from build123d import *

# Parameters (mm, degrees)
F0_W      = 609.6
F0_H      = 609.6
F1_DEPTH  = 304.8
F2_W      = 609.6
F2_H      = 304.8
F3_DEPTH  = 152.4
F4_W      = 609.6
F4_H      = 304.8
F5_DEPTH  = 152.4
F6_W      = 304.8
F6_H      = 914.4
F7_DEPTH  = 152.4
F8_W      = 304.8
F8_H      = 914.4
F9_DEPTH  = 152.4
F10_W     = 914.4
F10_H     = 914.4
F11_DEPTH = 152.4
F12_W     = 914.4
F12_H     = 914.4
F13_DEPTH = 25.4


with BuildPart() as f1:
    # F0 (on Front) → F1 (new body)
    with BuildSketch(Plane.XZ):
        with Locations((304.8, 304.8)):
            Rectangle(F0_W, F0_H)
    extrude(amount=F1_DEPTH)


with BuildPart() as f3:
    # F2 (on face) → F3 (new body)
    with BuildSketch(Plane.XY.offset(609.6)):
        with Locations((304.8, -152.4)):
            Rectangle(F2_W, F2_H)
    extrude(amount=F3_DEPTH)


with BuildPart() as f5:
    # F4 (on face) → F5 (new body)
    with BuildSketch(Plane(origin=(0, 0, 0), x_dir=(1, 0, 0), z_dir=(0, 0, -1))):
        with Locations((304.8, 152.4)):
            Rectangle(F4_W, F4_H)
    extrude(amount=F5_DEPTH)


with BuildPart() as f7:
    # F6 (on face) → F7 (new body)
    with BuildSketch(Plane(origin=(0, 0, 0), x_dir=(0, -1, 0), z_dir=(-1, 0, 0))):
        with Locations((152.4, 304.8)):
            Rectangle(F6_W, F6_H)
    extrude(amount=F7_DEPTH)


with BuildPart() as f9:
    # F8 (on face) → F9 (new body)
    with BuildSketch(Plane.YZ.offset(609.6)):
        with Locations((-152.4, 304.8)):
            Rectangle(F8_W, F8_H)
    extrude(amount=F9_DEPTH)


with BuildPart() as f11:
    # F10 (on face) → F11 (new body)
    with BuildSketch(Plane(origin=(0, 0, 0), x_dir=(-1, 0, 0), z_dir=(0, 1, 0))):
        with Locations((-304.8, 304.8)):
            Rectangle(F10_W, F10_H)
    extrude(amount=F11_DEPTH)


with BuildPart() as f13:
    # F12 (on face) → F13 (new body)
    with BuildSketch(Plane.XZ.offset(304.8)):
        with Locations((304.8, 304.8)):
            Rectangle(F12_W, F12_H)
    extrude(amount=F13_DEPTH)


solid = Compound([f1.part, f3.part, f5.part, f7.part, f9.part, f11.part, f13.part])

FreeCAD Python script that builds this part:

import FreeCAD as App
import Part
import Sketcher

V = App.Vector
Q = App.Units.Quantity

doc = App.newDocument("Part")
body = doc.addObject("PartDesign::Body", "Body")

# Sketch on XZ plane
sketch1 = body.newObject("Sketcher::SketchObject", "Sketch")
sketch1.AttachmentSupport = (doc.getObject("XZ_Plane"), [""])
sketch1.MapMode = "FlatFace"
sketch1.addGeometry(Part.LineSegment(V(0, 609.6, 0), V(0, 0, 0)), False)
sketch1.addGeometry(Part.LineSegment(V(0, 0, 0), V(609.6, 0, 0)), False)
sketch1.addGeometry(Part.LineSegment(V(609.6, 0, 0), V(609.6, 609.6, 0)), False)
sketch1.addGeometry(Part.LineSegment(V(609.6, 609.6, 0), V(0, 609.6, 0)), False)
sketch1.addConstraint(Sketcher.Constraint("Coincident", 0, 2, 1, 1))
sketch1.addConstraint(Sketcher.Constraint("Coincident", 1, 2, 2, 1))
sketch1.addConstraint(Sketcher.Constraint("Coincident", 2, 2, 3, 1))
sketch1.addConstraint(Sketcher.Constraint("Coincident", 3, 2, 0, 1))
sketch1.addConstraint(Sketcher.Constraint("Vertical", 0))
sketch1.addConstraint(Sketcher.Constraint("Horizontal", 1))
sketch1.addConstraint(Sketcher.Constraint("Vertical", 2))
sketch1.addConstraint(Sketcher.Constraint("Horizontal", 3))
sketch1.addConstraint(Sketcher.Constraint("Coincident", 0, 2, -1, 1))
sketch1.addConstraint(Sketcher.Constraint("Equal", 3, 0))
sketch1.addConstraint(Sketcher.Constraint("DistanceX", 1, 1, 1, 2, Q("24 in")))
pad1 = body.newObject("PartDesign::Pad", "Pad")
pad1.Profile = sketch1
pad1.Length = Q("12 in")
body2 = doc.addObject("PartDesign::Body", "Body001")

# Sketch on XY plane
sketch2 = body2.newObject("Sketcher::SketchObject", "Sketch001")
sketch2.AttachmentSupport = (doc.getObject("XY_Plane001"), [""])
sketch2.MapMode = "FlatFace"
sketch2.AttachmentOffset = App.Placement(V(0, 0, 24 * 25.4), App.Rotation())
sketch2.addGeometry(Part.LineSegment(V(0, 0, 0), V(0, -304.8, 0)), False)
sketch2.addGeometry(Part.LineSegment(V(0, -304.8, 0), V(609.6, -304.8, 0)), False)
sketch2.addGeometry(Part.LineSegment(V(609.6, -304.8, 0), V(609.6, 0, 0)), False)
sketch2.addGeometry(Part.LineSegment(V(609.6, 0, 0), V(0, 0, 0)), False)
sketch2.addConstraint(Sketcher.Constraint("Coincident", 0, 2, 1, 1))
sketch2.addConstraint(Sketcher.Constraint("Coincident", 1, 2, 2, 1))
sketch2.addConstraint(Sketcher.Constraint("Coincident", 2, 2, 3, 1))
sketch2.addConstraint(Sketcher.Constraint("Coincident", 3, 2, 0, 1))
sketch2.addConstraint(Sketcher.Constraint("Vertical", 0))
sketch2.addConstraint(Sketcher.Constraint("Horizontal", 1))
sketch2.addConstraint(Sketcher.Constraint("Vertical", 2))
sketch2.addConstraint(Sketcher.Constraint("Horizontal", 3))
sketch2.addConstraint(Sketcher.Constraint("Coincident", 3, 2, -1, 1))
sketch2.addConstraint(Sketcher.Constraint("DistanceX", 1, 1, 1, 2, Q("24 in")))
sketch2.addConstraint(Sketcher.Constraint("DistanceY", 0, 2, 0, 1, Q("12 in")))
pad2 = body2.newObject("PartDesign::Pad", "Pad001")
pad2.Profile = sketch2
pad2.Length = Q("6 in")
body3 = doc.addObject("PartDesign::Body", "Body002")

# Sketch on XY plane
sketch3 = body3.newObject("Sketcher::SketchObject", "Sketch002")
sketch3.AttachmentSupport = (doc.getObject("XY_Plane002"), [""])
sketch3.MapMode = "FlatFace"
sketch3.addGeometry(Part.LineSegment(V(0, -304.8, 0), V(0, 0, 0)), False)
sketch3.addGeometry(Part.LineSegment(V(0, 0, 0), V(609.6, 0, 0)), False)
sketch3.addGeometry(Part.LineSegment(V(609.6, 0, 0), V(609.6, -304.8, 0)), False)
sketch3.addGeometry(Part.LineSegment(V(609.6, -304.8, 0), V(0, -304.8, 0)), False)
sketch3.addConstraint(Sketcher.Constraint("Coincident", 0, 2, 1, 1))
sketch3.addConstraint(Sketcher.Constraint("Coincident", 1, 2, 2, 1))
sketch3.addConstraint(Sketcher.Constraint("Coincident", 2, 2, 3, 1))
sketch3.addConstraint(Sketcher.Constraint("Coincident", 3, 2, 0, 1))
sketch3.addConstraint(Sketcher.Constraint("Vertical", 0))
sketch3.addConstraint(Sketcher.Constraint("Horizontal", 1))
sketch3.addConstraint(Sketcher.Constraint("Vertical", 2))
sketch3.addConstraint(Sketcher.Constraint("Horizontal", 3))
sketch3.addConstraint(Sketcher.Constraint("Coincident", 0, 2, -1, 1))
sketch3.addConstraint(Sketcher.Constraint("DistanceX", 1, 1, 1, 2, Q("24 in")))
sketch3.addConstraint(Sketcher.Constraint("DistanceY", 0, 1, 0, 2, Q("12 in")))
pad3 = body3.newObject("PartDesign::Pad", "Pad002")
pad3.Profile = sketch3
pad3.Length = Q("6 in")
pad3.Reversed = True
body4 = doc.addObject("PartDesign::Body", "Body003")

# Sketch on YZ plane
sketch4 = body4.newObject("Sketcher::SketchObject", "Sketch003")
sketch4.AttachmentSupport = (doc.getObject("YZ_Plane003"), [""])
sketch4.MapMode = "FlatFace"
sketch4.addGeometry(Part.LineSegment(V(0, 762, 0), V(0, -152.4, 0)), False)
sketch4.addGeometry(Part.LineSegment(V(0, -152.4, 0), V(-304.8, -152.4, 0)), False)
sketch4.addGeometry(Part.LineSegment(V(-304.8, -152.4, 0), V(-304.8, 762, 0)), False)
sketch4.addGeometry(Part.LineSegment(V(-304.8, 762, 0), V(0, 762, 0)), False)
sketch4.addConstraint(Sketcher.Constraint("Coincident", 0, 2, 1, 1))
sketch4.addConstraint(Sketcher.Constraint("Coincident", 1, 2, 2, 1))
sketch4.addConstraint(Sketcher.Constraint("Coincident", 2, 2, 3, 1))
sketch4.addConstraint(Sketcher.Constraint("Coincident", 3, 2, 0, 1))
sketch4.addConstraint(Sketcher.Constraint("Vertical", 0))
sketch4.addConstraint(Sketcher.Constraint("Horizontal", 1))
sketch4.addConstraint(Sketcher.Constraint("Vertical", 2))
sketch4.addConstraint(Sketcher.Constraint("Horizontal", 3))
sketch4.addConstraint(Sketcher.Constraint("PointOnObject", 0, 2, -2))
sketch4.addConstraint(Sketcher.Constraint("DistanceX", 1, 2, 1, 1, Q("12 in")))
sketch4.addConstraint(Sketcher.Constraint("DistanceY", 0, 2, 0, 1, Q("36 in")))
sketch4.addConstraint(Sketcher.Constraint("DistanceY", 0, 2, -1, 1, Q("6 in")))
pad4 = body4.newObject("PartDesign::Pad", "Pad003")
pad4.Profile = sketch4
pad4.Length = Q("6 in")
pad4.Reversed = True
body5 = doc.addObject("PartDesign::Body", "Body004")

# Sketch on YZ plane
sketch5 = body5.newObject("Sketcher::SketchObject", "Sketch004")
sketch5.AttachmentSupport = (doc.getObject("YZ_Plane004"), [""])
sketch5.MapMode = "FlatFace"
sketch5.AttachmentOffset = App.Placement(V(0, 0, 24 * 25.4), App.Rotation())
sketch5.addGeometry(Part.LineSegment(V(-304.8, 762, 0), V(-304.8, -152.4, 0)), False)
sketch5.addGeometry(Part.LineSegment(V(-304.8, -152.4, 0), V(0, -152.4, 0)), False)
sketch5.addGeometry(Part.LineSegment(V(0, -152.4, 0), V(0, 762, 0)), False)
sketch5.addGeometry(Part.LineSegment(V(0, 762, 0), V(-304.8, 762, 0)), False)
sketch5.addConstraint(Sketcher.Constraint("Coincident", 0, 2, 1, 1))
sketch5.addConstraint(Sketcher.Constraint("Coincident", 1, 2, 2, 1))
sketch5.addConstraint(Sketcher.Constraint("Coincident", 2, 2, 3, 1))
sketch5.addConstraint(Sketcher.Constraint("Coincident", 3, 2, 0, 1))
sketch5.addConstraint(Sketcher.Constraint("Vertical", 0))
sketch5.addConstraint(Sketcher.Constraint("Horizontal", 1))
sketch5.addConstraint(Sketcher.Constraint("Vertical", 2))
sketch5.addConstraint(Sketcher.Constraint("Horizontal", 3))
sketch5.addConstraint(Sketcher.Constraint("PointOnObject", 1, 2, -2))
sketch5.addConstraint(Sketcher.Constraint("DistanceX", 1, 1, 1, 2, Q("12 in")))
sketch5.addConstraint(Sketcher.Constraint("DistanceY", 0, 2, 0, 1, Q("36 in")))
sketch5.addConstraint(Sketcher.Constraint("DistanceY", 0, 2, -1, 1, Q("6 in")))
pad5 = body5.newObject("PartDesign::Pad", "Pad004")
pad5.Profile = sketch5
pad5.Length = Q("6 in")
body6 = doc.addObject("PartDesign::Body", "Body005")

# Sketch on XZ plane
sketch6 = body6.newObject("Sketcher::SketchObject", "Sketch005")
sketch6.AttachmentSupport = (doc.getObject("XZ_Plane005"), [""])
sketch6.MapMode = "FlatFace"
sketch6.addGeometry(Part.LineSegment(V(762, 762, 0), V(762, -152.4, 0)), False)
sketch6.addGeometry(Part.LineSegment(V(762, -152.4, 0), V(-152.4, -152.4, 0)), False)
sketch6.addGeometry(Part.LineSegment(V(-152.4, -152.4, 0), V(-152.4, 762, 0)), False)
sketch6.addGeometry(Part.LineSegment(V(-152.4, 762, 0), V(762, 762, 0)), False)
sketch6.addConstraint(Sketcher.Constraint("Coincident", 0, 2, 1, 1))
sketch6.addConstraint(Sketcher.Constraint("Coincident", 1, 2, 2, 1))
sketch6.addConstraint(Sketcher.Constraint("Coincident", 2, 2, 3, 1))
sketch6.addConstraint(Sketcher.Constraint("Coincident", 3, 2, 0, 1))
sketch6.addConstraint(Sketcher.Constraint("Vertical", 0))
sketch6.addConstraint(Sketcher.Constraint("Horizontal", 1))
sketch6.addConstraint(Sketcher.Constraint("Vertical", 2))
sketch6.addConstraint(Sketcher.Constraint("Horizontal", 3))
sketch6.addConstraint(Sketcher.Constraint("Equal", 3, 0))
sketch6.addConstraint(Sketcher.Constraint("DistanceX", 1, 2, 1, 1, Q("36 in")))
sketch6.addConstraint(Sketcher.Constraint("DistanceX", -1, 1, 0, 2, Q("30 in")))
sketch6.addConstraint(Sketcher.Constraint("DistanceY", 0, 2, -1, 1, Q("6 in")))
pad6 = body6.newObject("PartDesign::Pad", "Pad005")
pad6.Profile = sketch6
pad6.Length = Q("6 in")
pad6.Reversed = True
body7 = doc.addObject("PartDesign::Body", "Body006")

# Sketch on XZ plane
sketch7 = body7.newObject("Sketcher::SketchObject", "Sketch006")
sketch7.AttachmentSupport = (doc.getObject("XZ_Plane006"), [""])
sketch7.MapMode = "FlatFace"
sketch7.AttachmentOffset = App.Placement(V(0, 0, 12 * 25.4), App.Rotation())
sketch7.addGeometry(Part.LineSegment(V(-152.4, 762, 0), V(-152.4, -152.4, 0)), False)
sketch7.addGeometry(Part.LineSegment(V(-152.4, -152.4, 0), V(762, -152.4, 0)), False)
sketch7.addGeometry(Part.LineSegment(V(762, -152.4, 0), V(762, 762, 0)), False)
sketch7.addGeometry(Part.LineSegment(V(762, 762, 0), V(-152.4, 762, 0)), False)
sketch7.addConstraint(Sketcher.Constraint("Coincident", 0, 2, 1, 1))
sketch7.addConstraint(Sketcher.Constraint("Coincident", 1, 2, 2, 1))
sketch7.addConstraint(Sketcher.Constraint("Coincident", 2, 2, 3, 1))
sketch7.addConstraint(Sketcher.Constraint("Coincident", 3, 2, 0, 1))
sketch7.addConstraint(Sketcher.Constraint("Vertical", 0))
sketch7.addConstraint(Sketcher.Constraint("Horizontal", 1))
sketch7.addConstraint(Sketcher.Constraint("Vertical", 2))
sketch7.addConstraint(Sketcher.Constraint("Horizontal", 3))
sketch7.addConstraint(Sketcher.Constraint("Equal", 3, 0))
sketch7.addConstraint(Sketcher.Constraint("DistanceX", 1, 1, 1, 2, Q("36 in")))
sketch7.addConstraint(Sketcher.Constraint("DistanceX", 0, 2, -1, 1, Q("6 in")))
sketch7.addConstraint(Sketcher.Constraint("DistanceY", 0, 2, -1, 1, Q("6 in")))
pad7 = body7.newObject("PartDesign::Pad", "Pad006")
pad7.Profile = sketch7
pad7.Length = Q("1 in")

doc.recompute()
